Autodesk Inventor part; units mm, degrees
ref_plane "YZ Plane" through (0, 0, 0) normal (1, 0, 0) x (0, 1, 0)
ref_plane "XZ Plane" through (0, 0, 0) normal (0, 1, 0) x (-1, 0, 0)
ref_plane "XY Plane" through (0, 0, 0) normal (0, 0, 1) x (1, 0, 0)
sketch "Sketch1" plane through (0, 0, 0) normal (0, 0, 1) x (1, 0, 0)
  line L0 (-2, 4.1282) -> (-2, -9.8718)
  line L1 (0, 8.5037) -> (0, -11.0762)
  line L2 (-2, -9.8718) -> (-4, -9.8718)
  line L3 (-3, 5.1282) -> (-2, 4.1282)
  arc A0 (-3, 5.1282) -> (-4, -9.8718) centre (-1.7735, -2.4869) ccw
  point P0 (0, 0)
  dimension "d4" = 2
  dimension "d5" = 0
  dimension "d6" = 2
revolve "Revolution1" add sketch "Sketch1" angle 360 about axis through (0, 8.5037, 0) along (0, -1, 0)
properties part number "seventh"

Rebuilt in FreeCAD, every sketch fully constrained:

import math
import FreeCAD as App
import Part
import Sketcher
from FreeCAD import Vector
Q = App.Units.Quantity

doc = App.newDocument("Part")
body = doc.addObject("PartDesign::Body", "Body")

sketch1 = body.newObject("Sketcher::SketchObject", "Sketch")
sketch1.AttachmentSupport = (doc.getObject("XY_Plane"), [""])
sketch1.MapMode = "FlatFace"
sketch1.addGeometry(Part.LineSegment(Vector(-2, -9.9, 0), Vector(-2, 4.1, 0)), False)
sketch1.addGeometry(Part.LineSegment(Vector(-2, 4.1, 0), Vector(-3, 5.1, 0)), False)
sketch1.addGeometry(Part.ArcOfCircle(Part.Circle(Vector(-1.8, -2.5, 0), Vector(0, 0, 1), 7.7), math.radians(99), math.radians(253)), False)
sketch1.addGeometry(Part.LineSegment(Vector(-4, -9.9, 0), Vector(-2, -9.9, 0)), False)
sketch1.addConstraint(Sketcher.Constraint("Coincident", 0, 2, 1, 1))
sketch1.addConstraint(Sketcher.Constraint("Coincident", 1, 2, 2, 1))
sketch1.addConstraint(Sketcher.Constraint("Coincident", 2, 2, 3, 1))
sketch1.addConstraint(Sketcher.Constraint("Coincident", 3, 2, 0, 1))
sketch1.addConstraint(Sketcher.Constraint("Vertical", 0))
sketch1.addConstraint(Sketcher.Constraint("Horizontal", 3))
sketch1.addConstraint(Sketcher.Constraint("DistanceX", 3, 1, 3, 2, Q("2 mm")))
sketch1.addConstraint(Sketcher.Constraint("DistanceX", 0, 2, -1, 1, Q("2 mm")))
sketch1.addConstraint(Sketcher.Constraint("DistanceY", 0, 1, 0, 2, Q("14 mm")))
sketch1.addConstraint(Sketcher.Constraint("Angle", 1, Q("135 deg")))
sketch1.addConstraint(Sketcher.Constraint("DistanceX", 1, 2, -1, 1, Q("3 mm")))
sketch1.addConstraint(Sketcher.Constraint("Radius", 2, Q("7.7132 mm")))
sketch1.addConstraint(Sketcher.Constraint("DistanceY", 2, 3, -1, 1, Q("2.487 mm")))
revolution = body.newObject("PartDesign::Revolution", "Revolution")
revolution.Profile = sketch1
revolution.ReferenceAxis = (sketch1, ["V_Axis"])
revolution.Angle = 360

doc.recompute()
